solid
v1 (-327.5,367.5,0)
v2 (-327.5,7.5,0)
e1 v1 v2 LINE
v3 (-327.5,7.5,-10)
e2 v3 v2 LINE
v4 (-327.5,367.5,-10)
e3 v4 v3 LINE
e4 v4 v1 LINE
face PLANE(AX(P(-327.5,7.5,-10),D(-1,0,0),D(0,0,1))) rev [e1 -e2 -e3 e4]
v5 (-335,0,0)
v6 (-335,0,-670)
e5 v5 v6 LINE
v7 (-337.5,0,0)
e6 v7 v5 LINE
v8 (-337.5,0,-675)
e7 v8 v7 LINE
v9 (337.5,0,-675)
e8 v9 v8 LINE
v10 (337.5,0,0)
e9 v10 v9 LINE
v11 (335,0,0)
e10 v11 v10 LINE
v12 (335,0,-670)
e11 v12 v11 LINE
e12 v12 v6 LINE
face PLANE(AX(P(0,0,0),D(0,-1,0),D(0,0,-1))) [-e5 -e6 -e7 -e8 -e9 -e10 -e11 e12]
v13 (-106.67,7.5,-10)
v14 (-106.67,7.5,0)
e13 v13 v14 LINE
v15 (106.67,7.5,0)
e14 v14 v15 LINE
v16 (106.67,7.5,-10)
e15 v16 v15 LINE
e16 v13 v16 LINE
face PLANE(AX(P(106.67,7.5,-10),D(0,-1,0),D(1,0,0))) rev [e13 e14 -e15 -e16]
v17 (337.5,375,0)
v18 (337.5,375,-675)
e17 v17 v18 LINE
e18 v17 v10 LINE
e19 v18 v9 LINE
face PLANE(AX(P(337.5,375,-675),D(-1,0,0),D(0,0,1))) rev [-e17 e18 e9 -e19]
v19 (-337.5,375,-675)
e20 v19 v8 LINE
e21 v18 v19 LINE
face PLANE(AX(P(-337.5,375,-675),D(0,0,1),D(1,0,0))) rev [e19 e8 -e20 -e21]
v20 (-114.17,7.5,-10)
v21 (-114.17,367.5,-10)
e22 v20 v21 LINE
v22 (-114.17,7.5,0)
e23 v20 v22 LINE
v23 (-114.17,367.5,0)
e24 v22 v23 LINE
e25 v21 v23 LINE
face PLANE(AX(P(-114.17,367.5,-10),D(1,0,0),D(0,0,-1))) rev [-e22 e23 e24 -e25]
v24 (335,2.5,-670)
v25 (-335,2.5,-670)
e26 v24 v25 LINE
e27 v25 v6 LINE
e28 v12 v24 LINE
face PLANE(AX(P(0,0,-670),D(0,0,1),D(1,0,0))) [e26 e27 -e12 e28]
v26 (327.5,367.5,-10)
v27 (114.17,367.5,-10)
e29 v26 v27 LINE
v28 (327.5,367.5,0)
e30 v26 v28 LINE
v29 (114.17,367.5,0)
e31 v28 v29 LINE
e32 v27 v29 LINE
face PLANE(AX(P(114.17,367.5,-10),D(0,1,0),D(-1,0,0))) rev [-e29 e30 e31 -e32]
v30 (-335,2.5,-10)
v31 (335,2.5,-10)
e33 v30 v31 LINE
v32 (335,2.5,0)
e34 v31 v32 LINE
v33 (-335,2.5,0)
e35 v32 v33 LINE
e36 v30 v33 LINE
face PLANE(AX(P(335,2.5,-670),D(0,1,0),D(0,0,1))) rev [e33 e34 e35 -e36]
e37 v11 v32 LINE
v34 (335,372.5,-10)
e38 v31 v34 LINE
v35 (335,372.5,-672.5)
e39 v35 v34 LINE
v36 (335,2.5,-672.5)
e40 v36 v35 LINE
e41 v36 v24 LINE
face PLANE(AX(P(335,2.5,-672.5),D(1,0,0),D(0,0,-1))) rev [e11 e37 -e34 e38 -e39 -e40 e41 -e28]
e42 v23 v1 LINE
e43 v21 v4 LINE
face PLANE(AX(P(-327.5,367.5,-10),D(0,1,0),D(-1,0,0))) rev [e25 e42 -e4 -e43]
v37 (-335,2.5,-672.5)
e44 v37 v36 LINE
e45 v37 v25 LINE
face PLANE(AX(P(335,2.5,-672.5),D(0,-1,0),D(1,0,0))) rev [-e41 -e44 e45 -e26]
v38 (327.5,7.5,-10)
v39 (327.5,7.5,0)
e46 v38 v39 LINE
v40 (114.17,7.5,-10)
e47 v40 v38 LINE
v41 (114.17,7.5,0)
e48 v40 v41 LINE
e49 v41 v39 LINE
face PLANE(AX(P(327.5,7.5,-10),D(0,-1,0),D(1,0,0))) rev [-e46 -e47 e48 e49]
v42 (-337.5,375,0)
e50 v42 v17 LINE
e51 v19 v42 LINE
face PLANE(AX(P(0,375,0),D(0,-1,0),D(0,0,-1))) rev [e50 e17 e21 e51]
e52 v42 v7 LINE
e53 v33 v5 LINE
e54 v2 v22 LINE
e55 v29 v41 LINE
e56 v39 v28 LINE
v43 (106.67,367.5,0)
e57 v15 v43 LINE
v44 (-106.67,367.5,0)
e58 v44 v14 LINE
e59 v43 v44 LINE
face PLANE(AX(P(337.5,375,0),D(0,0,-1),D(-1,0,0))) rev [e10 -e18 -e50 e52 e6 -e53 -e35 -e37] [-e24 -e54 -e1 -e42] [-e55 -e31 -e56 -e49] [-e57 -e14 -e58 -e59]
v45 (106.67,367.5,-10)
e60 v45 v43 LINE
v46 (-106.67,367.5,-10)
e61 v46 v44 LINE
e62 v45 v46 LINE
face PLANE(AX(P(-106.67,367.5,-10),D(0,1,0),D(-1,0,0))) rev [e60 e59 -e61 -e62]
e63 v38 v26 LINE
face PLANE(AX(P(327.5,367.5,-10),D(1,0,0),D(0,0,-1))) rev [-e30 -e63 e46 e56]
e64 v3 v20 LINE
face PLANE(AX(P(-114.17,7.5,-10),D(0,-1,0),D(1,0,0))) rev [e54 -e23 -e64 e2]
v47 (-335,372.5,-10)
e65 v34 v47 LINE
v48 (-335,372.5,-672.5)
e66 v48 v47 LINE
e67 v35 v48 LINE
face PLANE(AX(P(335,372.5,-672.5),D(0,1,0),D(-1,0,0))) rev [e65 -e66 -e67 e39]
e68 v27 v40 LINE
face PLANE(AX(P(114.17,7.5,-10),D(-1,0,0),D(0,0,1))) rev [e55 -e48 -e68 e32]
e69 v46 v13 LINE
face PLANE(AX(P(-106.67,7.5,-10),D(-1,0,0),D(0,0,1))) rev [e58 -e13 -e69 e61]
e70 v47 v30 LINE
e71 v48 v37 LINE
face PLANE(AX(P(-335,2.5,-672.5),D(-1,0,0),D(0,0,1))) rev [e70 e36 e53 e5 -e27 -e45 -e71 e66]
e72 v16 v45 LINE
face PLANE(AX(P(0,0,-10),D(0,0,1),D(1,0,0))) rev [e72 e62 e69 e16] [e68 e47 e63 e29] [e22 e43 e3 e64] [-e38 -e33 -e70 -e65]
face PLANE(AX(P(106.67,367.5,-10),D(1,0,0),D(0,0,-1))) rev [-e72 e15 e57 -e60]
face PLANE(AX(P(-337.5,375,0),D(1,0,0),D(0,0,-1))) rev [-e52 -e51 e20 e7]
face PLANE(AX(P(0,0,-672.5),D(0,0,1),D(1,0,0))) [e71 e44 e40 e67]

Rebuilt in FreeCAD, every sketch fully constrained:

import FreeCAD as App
import Part
import Sketcher

V = App.Vector
Q = App.Units.Quantity

doc = App.newDocument("Part")
body = doc.addObject("PartDesign::Body", "Body")

# Sketch on XZ plane
sketch1 = body.newObject("Sketcher::SketchObject", "Sketch")
sketch1.AttachmentSupport = (doc.getObject("XZ_Plane"), [""])
sketch1.MapMode = "FlatFace"
sketch1.addGeometry([
    Part.LineSegment(V(-337.5, -675, 0), V(-337.5, 0, 0)),
    Part.LineSegment(V(-337.5, 0, 0), V(337.5, 0, 0)),
    Part.LineSegment(V(337.5, 0, 0), V(337.5, -675, 0)),
    Part.LineSegment(V(337.5, -675, 0), V(-337.5, -675, 0)),
], False)
sketch1.addConstraint([
    Sketcher.Constraint("Coincident", 0, 2, 1, 1),
    Sketcher.Constraint("Coincident", 1, 2, 2, 1),
    Sketcher.Constraint("Coincident", 2, 2, 3, 1),
    Sketcher.Constraint("Coincident", 3, 2, 0, 1),
    Sketcher.Constraint("Vertical", 0),
    Sketcher.Constraint("Horizontal", 1),
    Sketcher.Constraint("Vertical", 2),
    Sketcher.Constraint("Horizontal", 3),
    Sketcher.Constraint("Symmetric", 0, 2, 1, 2, -1, 1),
    Sketcher.Constraint("Equal", 3, 0),
    Sketcher.Constraint("DistanceX", 1, 1, 1, 2, Q("675 mm")),
])
pad1 = body.newObject("PartDesign::Pad", "Pad")
pad1.Profile = sketch1
pad1.Length = 375
pad1.Reversed = True

# Sketch on XY plane
sketch2 = body.newObject("Sketcher::SketchObject", "Sketch001")
sketch2.AttachmentSupport = (doc.getObject("XY_Plane"), [""])
sketch2.MapMode = "FlatFace"
sketch2.AttachmentOffset = App.Placement(V(0, 0, -10), App.Rotation())
sketch2.addGeometry([
    Part.LineSegment(V(-335, 372.5, 0), V(-335, 2.5, 0)),
    Part.LineSegment(V(-335, 2.5, 0), V(335, 2.5, 0)),
    Part.LineSegment(V(335, 2.5, 0), V(335, 372.5, 0)),
    Part.LineSegment(V(335, 372.5, 0), V(-335, 372.5, 0)),
], False)
sketch2.addConstraint([
    Sketcher.Constraint("Coincident", 0, 2, 1, 1),
    Sketcher.Constraint("Coincident", 1, 2, 2, 1),
    Sketcher.Constraint("Coincident", 2, 2, 3, 1),
    Sketcher.Constraint("Coincident", 3, 2, 0, 1),
    Sketcher.Constraint("Vertical", 0),
    Sketcher.Constraint("Horizontal", 1),
    Sketcher.Constraint("Vertical", 2),
    Sketcher.Constraint("Horizontal", 3),
    Sketcher.Constraint("DistanceX", 1, 1, 1, 2, Q("670 mm")),
    Sketcher.Constraint("DistanceY", 0, 2, 0, 1, Q("370 mm")),
    Sketcher.Constraint("DistanceX", 0, 2, -1, 1, Q("335 mm")),
    Sketcher.Constraint("DistanceY", -1, 1, 0, 2, Q("2.5 mm")),
])
pocket1 = body.newObject("PartDesign::Pocket", "Pocket")
pocket1.Profile = sketch2
pocket1.Length = 662.5

# Sketch on XY plane
sketch3 = body.newObject("Sketcher::SketchObject", "Sketch002")
sketch3.AttachmentSupport = (doc.getObject("XY_Plane"), [""])
sketch3.MapMode = "FlatFace"
sketch3.addGeometry([
    Part.LineSegment(V(-335, 2.5, 0), V(-335, -2.5, 0)),
    Part.LineSegment(V(-335, -2.5, 0), V(335, -2.5, 0)),
    Part.LineSegment(V(335, -2.5, 0), V(335, 2.5, 0)),
    Part.LineSegment(V(335, 2.5, 0), V(-335, 2.5, 0)),
], False)
sketch3.addConstraint([
    Sketcher.Constraint("Coincident", 0, 2, 1, 1),
    Sketcher.Constraint("Coincident", 1, 2, 2, 1),
    Sketcher.Constraint("Coincident", 2, 2, 3, 1),
    Sketcher.Constraint("Coincident", 3, 2, 0, 1),
    Sketcher.Constraint("Vertical", 0),
    Sketcher.Constraint("Horizontal", 1),
    Sketcher.Constraint("Vertical", 2),
    Sketcher.Constraint("Horizontal", 3),
    Sketcher.Constraint("Symmetric", 0, 2, 2, 2, -1, 1),
    Sketcher.Constraint("DistanceX", 1, 1, 1, 2, Q("670 mm")),
    Sketcher.Constraint("DistanceY", 0, 2, 0, 1, Q("5 mm")),
])
pocket2 = body.newObject("PartDesign::Pocket", "Pocket001")
pocket2.Profile = sketch3
pocket2.Length = 670

# Sketch on XY plane
sketch4 = body.newObject("Sketcher::SketchObject", "Sketch003")
sketch4.AttachmentSupport = (doc.getObject("XY_Plane"), [""])
sketch4.MapMode = "FlatFace"
sketch4.addGeometry([
    Part.LineSegment(V(-106.67, 367.5, 0), V(-106.67, 7.5, 0)),  # 0
    Part.LineSegment(V(-106.67, 7.5, 0), V(106.67, 7.5, 0)),  # 1
    Part.LineSegment(V(106.67, 7.5, 0), V(106.67, 367.5, 0)),  # 2
    Part.LineSegment(V(106.67, 367.5, 0), V(-106.67, 367.5, 0)),  # 3
    Part.LineSegment(V(-327.5, 367.5, 0), V(-327.5, 7.5, 0)),  # 4
    Part.LineSegment(V(-327.5, 7.5, 0), V(-114.17, 7.5, 0)),  # 5
    Part.LineSegment(V(-114.17, 7.5, 0), V(-114.17, 367.5, 0)),  # 6
    Part.LineSegment(V(-114.17, 367.5, 0), V(-327.5, 367.5, 0)),  # 7
    Part.LineSegment(V(114.17, 367.5, 0), V(114.17, 7.5, 0)),  # 8
    Part.LineSegment(V(114.17, 7.5, 0), V(327.5, 7.5, 0)),  # 9
    Part.LineSegment(V(327.5, 7.5, 0), V(327.5, 367.5, 0)),  # 10
    Part.LineSegment(V(327.5, 367.5, 0), V(114.17, 367.5, 0)),  # 11
], False)
sketch4.addConstraint([
    Sketcher.Constraint("Coincident", 0, 2, 1, 1),
    Sketcher.Constraint("Coincident", 1, 2, 2, 1),
    Sketcher.Constraint("Coincident", 2, 2, 3, 1),
    Sketcher.Constraint("Coincident", 3, 2, 0, 1),
    Sketcher.Constraint("Coincident", 4, 2, 5, 1),
    Sketcher.Constraint("Coincident", 5, 2, 6, 1),
    Sketcher.Constraint("Coincident", 6, 2, 7, 1),
    Sketcher.Constraint("Coincident", 7, 2, 4, 1),
    Sketcher.Constraint("Coincident", 8, 2, 9, 1),
    Sketcher.Constraint("Coincident", 9, 2, 10, 1),
    Sketcher.Constraint("Coincident", 10, 2, 11, 1),
    Sketcher.Constraint("Coincident", 11, 2, 8, 1),
    Sketcher.Constraint("Vertical", 0),
    Sketcher.Constraint("Horizontal", 1),
    Sketcher.Constraint("Vertical", 2),
    Sketcher.Constraint("Horizontal", 3),
    Sketcher.Constraint("Vertical", 4),
    Sketcher.Constraint("Horizontal", 5),
    Sketcher.Constraint("Vertical", 6),
    Sketcher.Constraint("Horizontal", 7),
    Sketcher.Constraint("Vertical", 8),
    Sketcher.Constraint("Horizontal", 9),
    Sketcher.Constraint("Vertical", 10),
    Sketcher.Constraint("Horizontal", 11),
    Sketcher.Constraint("Symmetric", 5, 2, 8, 2, -2),
    Sketcher.Constraint("Symmetric", 7, 2, 10, 2, -2),
    Sketcher.Constraint("Horizontal", 1, 2, 4, 2),
    Sketcher.Constraint("Horizontal", 3, 2, 6, 2),
    Sketcher.Constraint("DistanceY", 0, 2, 0, 1, Q("360 mm")),
    Sketcher.Constraint("DistanceX", 1, 1, 1, 2, Q("213.34 mm")),
    Sketcher.Constraint("DistanceX", 5, 1, 5, 2, Q("213.33 mm")),
    Sketcher.Constraint("DistanceY", -1, 1, 0, 2, Q("7.5 mm")),
    Sketcher.Constraint("DistanceX", 4, 2, -1, 1, Q("327.5 mm")),
    Sketcher.Constraint("DistanceX", 5, 2, 0, 2, Q("7.5 mm")),
])
pocket3 = body.newObject("PartDesign::Pocket", "Pocket002")
pocket3.Profile = sketch4
pocket3.Length = 10

doc.recompute()
